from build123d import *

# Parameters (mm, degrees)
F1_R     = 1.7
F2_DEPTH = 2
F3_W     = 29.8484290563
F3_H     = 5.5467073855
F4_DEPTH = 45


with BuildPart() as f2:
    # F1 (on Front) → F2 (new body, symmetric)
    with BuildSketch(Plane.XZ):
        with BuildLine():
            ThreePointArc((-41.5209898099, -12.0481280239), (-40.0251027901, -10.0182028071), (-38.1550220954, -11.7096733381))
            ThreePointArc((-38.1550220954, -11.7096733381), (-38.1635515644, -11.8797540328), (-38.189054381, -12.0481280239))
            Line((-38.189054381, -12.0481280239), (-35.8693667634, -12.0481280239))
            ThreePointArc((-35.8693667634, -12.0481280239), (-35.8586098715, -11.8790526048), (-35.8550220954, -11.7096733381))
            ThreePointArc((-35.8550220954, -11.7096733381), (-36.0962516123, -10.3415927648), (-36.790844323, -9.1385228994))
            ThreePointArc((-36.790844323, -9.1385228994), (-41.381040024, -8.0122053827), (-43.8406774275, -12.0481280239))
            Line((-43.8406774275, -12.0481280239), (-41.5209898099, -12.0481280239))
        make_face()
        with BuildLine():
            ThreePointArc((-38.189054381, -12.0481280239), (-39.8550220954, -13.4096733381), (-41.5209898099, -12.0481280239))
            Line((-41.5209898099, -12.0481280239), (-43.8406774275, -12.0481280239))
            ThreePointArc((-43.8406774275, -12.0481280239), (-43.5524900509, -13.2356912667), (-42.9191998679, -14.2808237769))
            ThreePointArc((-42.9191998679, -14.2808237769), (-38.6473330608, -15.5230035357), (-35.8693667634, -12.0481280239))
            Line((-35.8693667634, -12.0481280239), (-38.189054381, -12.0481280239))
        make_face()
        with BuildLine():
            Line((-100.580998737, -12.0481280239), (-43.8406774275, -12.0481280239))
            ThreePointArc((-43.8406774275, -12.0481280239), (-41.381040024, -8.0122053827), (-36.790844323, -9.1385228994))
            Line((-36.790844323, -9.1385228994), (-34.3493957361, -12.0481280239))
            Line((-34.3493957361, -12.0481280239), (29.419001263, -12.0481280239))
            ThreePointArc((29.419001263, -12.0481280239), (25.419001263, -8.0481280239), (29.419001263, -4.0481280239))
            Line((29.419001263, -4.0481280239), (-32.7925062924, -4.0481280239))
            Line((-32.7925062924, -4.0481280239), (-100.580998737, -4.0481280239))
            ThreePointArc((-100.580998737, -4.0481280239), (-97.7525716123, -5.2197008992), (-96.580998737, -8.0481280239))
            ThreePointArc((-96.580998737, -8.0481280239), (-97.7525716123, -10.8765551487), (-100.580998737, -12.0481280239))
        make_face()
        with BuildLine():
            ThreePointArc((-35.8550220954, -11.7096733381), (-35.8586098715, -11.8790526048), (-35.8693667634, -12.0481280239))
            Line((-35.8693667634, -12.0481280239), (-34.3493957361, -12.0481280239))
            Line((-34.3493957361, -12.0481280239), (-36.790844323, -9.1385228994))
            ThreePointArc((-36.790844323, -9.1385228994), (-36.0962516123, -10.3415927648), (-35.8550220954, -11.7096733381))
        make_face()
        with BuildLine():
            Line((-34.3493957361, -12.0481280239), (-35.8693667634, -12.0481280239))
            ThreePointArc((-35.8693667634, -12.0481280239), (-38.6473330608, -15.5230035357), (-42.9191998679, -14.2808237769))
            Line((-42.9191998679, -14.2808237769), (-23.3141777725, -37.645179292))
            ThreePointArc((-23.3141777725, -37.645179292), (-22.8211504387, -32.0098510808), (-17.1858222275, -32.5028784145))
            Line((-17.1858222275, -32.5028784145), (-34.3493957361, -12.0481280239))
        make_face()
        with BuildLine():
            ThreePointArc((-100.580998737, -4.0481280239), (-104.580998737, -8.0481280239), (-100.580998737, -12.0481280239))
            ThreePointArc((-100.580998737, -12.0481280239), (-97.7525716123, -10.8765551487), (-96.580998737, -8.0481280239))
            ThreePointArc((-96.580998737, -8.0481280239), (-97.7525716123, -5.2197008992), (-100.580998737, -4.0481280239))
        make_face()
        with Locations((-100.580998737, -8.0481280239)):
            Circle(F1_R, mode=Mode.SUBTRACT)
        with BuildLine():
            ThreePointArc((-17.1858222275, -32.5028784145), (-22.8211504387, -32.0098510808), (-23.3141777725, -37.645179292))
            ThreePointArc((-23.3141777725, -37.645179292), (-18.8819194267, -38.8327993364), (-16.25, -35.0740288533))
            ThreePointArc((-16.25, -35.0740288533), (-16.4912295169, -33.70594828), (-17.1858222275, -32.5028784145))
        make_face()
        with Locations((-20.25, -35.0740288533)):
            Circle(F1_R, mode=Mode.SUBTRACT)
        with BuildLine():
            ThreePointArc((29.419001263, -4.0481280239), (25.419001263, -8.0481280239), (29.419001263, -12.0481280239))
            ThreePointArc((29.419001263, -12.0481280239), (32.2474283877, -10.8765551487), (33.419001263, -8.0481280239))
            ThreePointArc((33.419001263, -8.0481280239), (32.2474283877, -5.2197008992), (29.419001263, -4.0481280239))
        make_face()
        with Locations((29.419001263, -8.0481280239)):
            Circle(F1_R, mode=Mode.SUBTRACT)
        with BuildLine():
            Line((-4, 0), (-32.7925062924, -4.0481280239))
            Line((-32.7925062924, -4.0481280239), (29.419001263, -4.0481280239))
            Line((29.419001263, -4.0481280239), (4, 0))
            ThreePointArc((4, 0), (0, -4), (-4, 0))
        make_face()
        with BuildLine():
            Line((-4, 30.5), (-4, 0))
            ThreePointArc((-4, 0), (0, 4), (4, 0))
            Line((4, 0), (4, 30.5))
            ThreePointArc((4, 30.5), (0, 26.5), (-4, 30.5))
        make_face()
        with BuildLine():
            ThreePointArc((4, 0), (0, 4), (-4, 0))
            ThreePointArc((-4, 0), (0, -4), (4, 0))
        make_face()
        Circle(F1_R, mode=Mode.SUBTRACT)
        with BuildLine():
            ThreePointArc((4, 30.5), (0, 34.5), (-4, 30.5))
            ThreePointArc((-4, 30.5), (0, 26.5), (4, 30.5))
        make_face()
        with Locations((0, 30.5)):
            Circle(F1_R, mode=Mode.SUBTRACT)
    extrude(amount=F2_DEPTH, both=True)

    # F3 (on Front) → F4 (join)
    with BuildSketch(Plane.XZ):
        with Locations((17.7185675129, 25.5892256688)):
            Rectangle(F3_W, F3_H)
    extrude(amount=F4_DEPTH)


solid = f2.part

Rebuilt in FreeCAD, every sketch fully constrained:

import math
import FreeCAD as App
import Part
import Sketcher

V = App.Vector
Q = App.Units.Quantity


def add_polygon(sketch, points):
    """Adds a closed chain of lines whose ends are joined by coincident constraints."""
    first, n = sketch.GeometryCount, len(points)
    for a, b in zip(points, points[1:] + points[:1]):
        sketch.addGeometry(Part.LineSegment(App.Vector(*a, 0), App.Vector(*b, 0)), False)
    for i in range(n):
        sketch.addConstraint(Sketcher.Constraint("Coincident", first + i, 2, first + (i + 1) % n, 1))

doc = App.newDocument("Part")
body = doc.addObject("PartDesign::Body", "Body")

# Sketch on XZ plane
sketch1 = body.newObject("Sketcher::SketchObject", "Sketch")
sketch1.AttachmentSupport = (doc.getObject("XZ_Plane"), [""])
sketch1.MapMode = "FlatFace"
sketch1.addGeometry(Part.LineSegment(V(-34.35, -12.05, 0), V(29.42, -12.05, 0)), False)
sketch1.addGeometry(Part.ArcOfCircle(Part.Circle(V(29.42, -8.05, 0), V(0, 0, 1), 4), math.radians(-90), math.radians(0)), False)
sketch1.addGeometry(Part.ArcOfCircle(Part.Circle(V(29.42, -8.05, 0), V(0, 0, 1), 4), math.radians(0), math.radians(90)), False)
sketch1.addGeometry(Part.LineSegment(V(29.42, -4.05, 0), V(4, 0, 0)), False)
sketch1.addGeometry(Part.LineSegment(V(4, 0, 0), V(4, 30.5, 0)), False)
sketch1.addGeometry(Part.ArcOfCircle(Part.Circle(V(0, 30.5, 0), V(0, 0, 1), 4), math.radians(0), math.radians(180)), False)
sketch1.addGeometry(Part.LineSegment(V(-4, 30.5, 0), V(-4, 0, 0)), False)
sketch1.addGeometry(Part.LineSegment(V(-4, 0, 0), V(-32.79, -4.05, 0)), False)
sketch1.addGeometry(Part.LineSegment(V(-32.79, -4.05, 0), V(-100.58, -4.05, 0)), False)
sketch1.addGeometry(Part.ArcOfCircle(Part.Circle(V(-100.58, -8.05, 0), V(0, 0, 1), 4), math.radians(90), math.radians(270)), False)
sketch1.addGeometry(Part.LineSegment(V(-100.58, -12.05, 0), V(-43.84, -12.05, 0)), False)
sketch1.addGeometry(Part.ArcOfCircle(Part.Circle(V(-39.86, -11.71, 0), V(0, 0, 1), 4), math.radians(-175), math.radians(-140)), False)
sketch1.addGeometry(Part.LineSegment(V(-42.92, -14.28, 0), V(-23.31, -37.65, 0)), False)
sketch1.addGeometry(Part.ArcOfCircle(Part.Circle(V(-20.25, -35.07, 0), V(0, 0, 1), 4), math.radians(-140), math.radians(0)), False)
sketch1.addGeometry(Part.ArcOfCircle(Part.Circle(V(-20.25, -35.07, 0), V(0, 0, 1), 4), math.radians(0), math.radians(40)), False)
sketch1.addGeometry(Part.LineSegment(V(-17.19, -32.5, 0), V(-34.35, -12.05, 0)), False)
sketch1.addGeometry(Part.Circle(V(-100.58, -8.05, 0), V(0, 0, 1), 1.7), False)
sketch1.addGeometry(Part.ArcOfCircle(Part.Circle(V(-39.86, -11.71, 0), V(0, 0, 1), 1.7), math.radians(0), math.radians(191)), False)
sketch1.addGeometry(Part.ArcOfCircle(Part.Circle(V(-39.86, -11.71, 0), V(0, 0, 1), 1.7), math.radians(-11.48), math.radians(0)), False)
sketch1.addGeometry(Part.ArcOfCircle(Part.Circle(V(-39.86, -11.71, 0), V(0, 0, 1), 1.7), math.radians(-169), math.radians(-11)), False)
sketch1.addGeometry(Part.Circle(V(-20.25, -35.07, 0), V(0, 0, 1), 1.7), False)
sketch1.addGeometry(Part.Circle(V(29.42, -8.05, 0), V(0, 0, 1), 1.7), False)
sketch1.addGeometry(Part.Circle(V(0, 0, 0), V(0, 0, 1), 1.7), False)
sketch1.addGeometry(Part.Circle(V(0, 30.5, 0), V(0, 0, 1), 1.7), False)
sketch1.addConstraint(Sketcher.Constraint("Tangent", 0, 2, 1, 1))
sketch1.addConstraint(Sketcher.Constraint("Tangent", 1, 2, 2, 1))
sketch1.addConstraint(Sketcher.Constraint("Coincident", 2, 2, 3, 1))
sketch1.addConstraint(Sketcher.Constraint("Coincident", 3, 2, 4, 1))
sketch1.addConstraint(Sketcher.Constraint("Tangent", 4, 2, 5, 1))
sketch1.addConstraint(Sketcher.Constraint("Tangent", 5, 2, 6, 1))
sketch1.addConstraint(Sketcher.Constraint("Coincident", 6, 2, 7, 1))
sketch1.addConstraint(Sketcher.Constraint("Coincident", 7, 2, 8, 1))
sketch1.addConstraint(Sketcher.Constraint("Tangent", 8, 2, 9, 1))
sketch1.addConstraint(Sketcher.Constraint("Tangent", 9, 2, 10, 1))
sketch1.addConstraint(Sketcher.Constraint("Coincident", 10, 2, 11, 1))
sketch1.addConstraint(Sketcher.Constraint("Tangent", 11, 2, 12, 1))
sketch1.addConstraint(Sketcher.Constraint("Tangent", 12, 2, 13, 1))
sketch1.addConstraint(Sketcher.Constraint("Tangent", 13, 2, 14, 1))
sketch1.addConstraint(Sketcher.Constraint("Tangent", 14, 2, 15, 1))
sketch1.addConstraint(Sketcher.Constraint("Coincident", 15, 2, 0, 1))
sketch1.addConstraint(Sketcher.Constraint("Tangent", 17, 1, 18, 2))
sketch1.addConstraint(Sketcher.Constraint("Tangent", 18, 1, 19, 2))
sketch1.addConstraint(Sketcher.Constraint("Tangent", 19, 1, 17, 2))
sketch1.addConstraint(Sketcher.Constraint("Horizontal", 0))
sketch1.addConstraint(Sketcher.Constraint("Vertical", 4))
sketch1.addConstraint(Sketcher.Constraint("Vertical", 6))
sketch1.addConstraint(Sketcher.Constraint("Horizontal", 8))
sketch1.addConstraint(Sketcher.Constraint("Horizontal", 10))
sketch1.addConstraint(Sketcher.Constraint("Coincident", 22, 3, -1, 1))
sketch1.addConstraint(Sketcher.Constraint("Coincident", 16, 3, 9, 3))
sketch1.addConstraint(Sketcher.Constraint("Coincident", 17, 3, 11, 3))
sketch1.addConstraint(Sketcher.Constraint("Coincident", 20, 3, 13, 3))
sketch1.addConstraint(Sketcher.Constraint("Coincident", 21, 3, 1, 3))
sketch1.addConstraint(Sketcher.Constraint("Coincident", 23, 3, 5, 3))
sketch1.addConstraint(Sketcher.Constraint("Equal", 1, 2))
sketch1.addConstraint(Sketcher.Constraint("Equal", 2, 5))
sketch1.addConstraint(Sketcher.Constraint("Equal", 5, 9))
sketch1.addConstraint(Sketcher.Constraint("Equal", 9, 11))
sketch1.addConstraint(Sketcher.Constraint("Equal", 11, 13))
sketch1.addConstraint(Sketcher.Constraint("Equal", 13, 14))
sketch1.addConstraint(Sketcher.Constraint("Equal", 16, 17))
sketch1.addConstraint(Sketcher.Constraint("Equal", 19, 20))
sketch1.addConstraint(Sketcher.Constraint("Equal", 20, 21))
sketch1.addConstraint(Sketcher.Constraint("Equal", 21, 22))
sketch1.addConstraint(Sketcher.Constraint("Equal", 22, 23))
sketch1.addConstraint(Sketcher.Constraint("Symmetric", 3, 2, 6, 2, -1, 1))
sketch1.addConstraint(Sketcher.Constraint("PointOnObject", 3, 2, -1))
sketch1.addConstraint(Sketcher.Constraint("Parallel", 12, 15))
sketch1.addConstraint(Sketcher.Constraint("Horizontal", 2, 3, 9, 3))
sketch1.addConstraint(Sketcher.Constraint("Horizontal", 21, 3, 1, 2))
sketch1.addConstraint(Sketcher.Constraint("Horizontal", 20, 3, 13, 2))
sketch1.addConstraint(Sketcher.Constraint("Horizontal", 19, 3, 17, 1))
sketch1.addConstraint(Sketcher.Constraint("Horizontal", 15, 2, 18, 1))
sketch1.addConstraint(Sketcher.Constraint("Horizontal", 18, 1, 19, 1))
sketch1.addConstraint(Sketcher.Constraint("Vertical", 0, 2, 2, 2))
sketch1.addConstraint(Sketcher.Constraint("Radius", 1, 4.0))
sketch1.addConstraint(Sketcher.Constraint("Diameter", 16, 3.4))
sketch1.addConstraint(Sketcher.Constraint("Angle", 12, Q("-50 deg")))
sketch1.addConstraint(Sketcher.Constraint("DistanceY", 4, 1, 4, 2, 30.5))
sketch1.addConstraint(Sketcher.Constraint("DistanceX", 9, 3, 1, 3, 130.0))
sketch1.addConstraint(Sketcher.Constraint("Distance", 12, 30.5))
sketch1.addConstraint(Sketcher.Constraint("DistanceX", 13, 3, -1, 1, 20.25))
sketch1.addConstraint(Sketcher.Constraint("DistanceX", -1, 1, 1, 3, 29.419001))
sketch1.addConstraint(Sketcher.Constraint("DistanceX", 10, 1, 10, 2, 56.740321))
sketch1.addConstraint(Sketcher.Constraint("Distance", 7, 29.07569))
sketch1.addConstraint(Sketcher.Constraint("DistanceX", 8, 2, 8, 1, 67.788492))
pad1 = body.newObject("PartDesign::Pad", "Pad")
pad1.Profile = sketch1
pad1.Length = 4
pad1.Midplane = True

# Sketch on XZ plane
sketch2 = body.newObject("Sketcher::SketchObject", "Sketch001")
sketch2.AttachmentSupport = (doc.getObject("XZ_Plane"), [""])
sketch2.MapMode = "FlatFace"
add_polygon(sketch2, [(3, 28), (3, 23), (33, 23), (33, 28)])  # lines 0-3
sketch2.addConstraint(Sketcher.Constraint("Vertical", 0))
sketch2.addConstraint(Sketcher.Constraint("Horizontal", 1))
sketch2.addConstraint(Sketcher.Constraint("Vertical", 2))
sketch2.addConstraint(Sketcher.Constraint("Horizontal", 3))
sketch2.addConstraint(Sketcher.Constraint("DistanceX", 1, 1, 1, 2, 29.848429))
sketch2.addConstraint(Sketcher.Constraint("DistanceY", 0, 2, 0, 1, 5.546707))
sketch2.addConstraint(Sketcher.Constraint("DistanceY", -1, 1, 0, 2, 22.815872))
sketch2.addConstraint(Sketcher.Constraint("DistanceX", -1, 1, 0, 2, 2.794353))
pad2 = body.newObject("PartDesign::Pad", "Pad001")
pad2.Profile = sketch2
pad2.Length = 45

doc.recompute()
